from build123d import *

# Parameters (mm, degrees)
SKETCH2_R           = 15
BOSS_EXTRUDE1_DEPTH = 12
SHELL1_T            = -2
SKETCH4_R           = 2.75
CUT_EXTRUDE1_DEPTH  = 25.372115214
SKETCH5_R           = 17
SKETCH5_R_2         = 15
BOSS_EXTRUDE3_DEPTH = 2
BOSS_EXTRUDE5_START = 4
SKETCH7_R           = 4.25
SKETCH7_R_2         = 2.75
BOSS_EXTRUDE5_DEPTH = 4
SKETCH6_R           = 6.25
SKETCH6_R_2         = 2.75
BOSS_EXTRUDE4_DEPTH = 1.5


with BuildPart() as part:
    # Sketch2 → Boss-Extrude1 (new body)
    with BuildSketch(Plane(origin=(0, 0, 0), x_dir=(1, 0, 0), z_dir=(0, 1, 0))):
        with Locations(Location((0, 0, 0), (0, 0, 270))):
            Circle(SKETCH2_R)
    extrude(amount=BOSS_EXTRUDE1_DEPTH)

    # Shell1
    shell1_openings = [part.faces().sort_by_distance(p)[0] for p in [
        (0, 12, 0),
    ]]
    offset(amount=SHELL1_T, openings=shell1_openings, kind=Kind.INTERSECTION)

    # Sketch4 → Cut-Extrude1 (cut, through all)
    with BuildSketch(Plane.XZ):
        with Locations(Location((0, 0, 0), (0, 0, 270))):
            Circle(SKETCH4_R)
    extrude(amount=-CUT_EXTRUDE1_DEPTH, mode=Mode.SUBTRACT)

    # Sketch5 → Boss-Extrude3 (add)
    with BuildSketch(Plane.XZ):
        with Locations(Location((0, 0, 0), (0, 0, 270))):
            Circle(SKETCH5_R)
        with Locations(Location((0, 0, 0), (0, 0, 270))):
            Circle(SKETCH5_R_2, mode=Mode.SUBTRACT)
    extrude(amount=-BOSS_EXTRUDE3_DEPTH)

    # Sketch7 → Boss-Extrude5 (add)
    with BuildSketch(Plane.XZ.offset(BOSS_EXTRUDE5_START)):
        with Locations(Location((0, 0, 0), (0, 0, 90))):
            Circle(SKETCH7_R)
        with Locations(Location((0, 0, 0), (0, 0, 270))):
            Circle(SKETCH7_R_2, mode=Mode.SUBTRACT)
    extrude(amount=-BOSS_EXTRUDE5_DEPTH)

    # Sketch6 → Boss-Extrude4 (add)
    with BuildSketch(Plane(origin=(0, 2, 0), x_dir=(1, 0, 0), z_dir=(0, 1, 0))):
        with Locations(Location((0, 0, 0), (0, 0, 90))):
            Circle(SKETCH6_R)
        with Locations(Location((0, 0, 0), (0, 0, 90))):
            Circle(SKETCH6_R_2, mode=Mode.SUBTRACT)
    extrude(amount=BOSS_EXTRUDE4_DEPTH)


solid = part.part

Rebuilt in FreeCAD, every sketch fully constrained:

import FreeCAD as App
import Part
import Sketcher


def faces_at(feature, points):
    """Names of the faces that lie closest to the given points."""
    faces = feature.Shape.Faces
    near = lambda p: min(range(len(faces)), key=lambda i: faces[i].distToShape(Part.Vertex(*p))[0])
    return sorted({f"Face{near(p) + 1}" for p in points})

doc = App.newDocument("Part")
body = doc.addObject("PartDesign::Body", "Body")

# Sketch on XZ plane
sketch1 = doc.addObject("Sketcher::SketchObject", "Sketch")
body.addObject(sketch1)
sketch1.AttachmentSupport = (doc.XZ_Plane, [""])
sketch1.MapMode = "FlatFace"
sketch1.addGeometry(Part.Circle(App.Vector(0, 0, 0), App.Vector(0, 0, 1), 15), False)
sketch1.addConstraint([
    Sketcher.Constraint("Coincident", 0, 3, -1, 1),
    Sketcher.Constraint("Diameter", 0, 30.0),
])
pad1 = doc.addObject("PartDesign::Pad", "Pad")
body.addObject(pad1)
pad1.Profile = sketch1
pad1.Length = 12
pad1.Reversed = True
doc.recompute()

thickness = doc.addObject("PartDesign::Thickness", "Thickness")
body.addObject(thickness)
thickness.Base = (pad1, faces_at(pad1, [(0, 12, 0)]))
thickness.Value = 2
thickness.Reversed = True
thickness.Join = "Intersection"

# Sketch on XZ plane
sketch2 = doc.addObject("Sketcher::SketchObject", "Sketch001")
body.addObject(sketch2)
sketch2.AttachmentSupport = (doc.XZ_Plane, [""])
sketch2.MapMode = "FlatFace"
sketch2.addGeometry(Part.Circle(App.Vector(0, 0, 0), App.Vector(0, 0, 1), 2.8), False)
sketch2.addConstraint([
    Sketcher.Constraint("Coincident", 0, 3, -1, 1),
    Sketcher.Constraint("Diameter", 0, 5.5),
])
pocket1 = doc.addObject("PartDesign::Pocket", "Pocket")
body.addObject(pocket1)
pocket1.Profile = sketch2
pocket1.Type = "ThroughAll"

# Sketch on XZ plane
sketch3 = doc.addObject("Sketcher::SketchObject", "Sketch002")
body.addObject(sketch3)
sketch3.AttachmentSupport = (doc.XZ_Plane, [""])
sketch3.MapMode = "FlatFace"
sketch3.addGeometry([
    Part.Circle(App.Vector(0, 0, 0), App.Vector(0, 0, 1), 17),
    Part.Circle(App.Vector(0, 0, 0), App.Vector(0, 0, 1), 15),
], False)
sketch3.addConstraint([
    Sketcher.Constraint("Coincident", 0, 3, -1, 1),
    Sketcher.Constraint("Coincident", 1, 3, -1, 1),
    Sketcher.Constraint("Diameter", 0, 34.0),
    Sketcher.Constraint("Diameter", 1, 30.0),
])
pad2 = doc.addObject("PartDesign::Pad", "Pad001")
body.addObject(pad2)
pad2.Profile = sketch3
pad2.Length = 2
pad2.Reversed = True

# Sketch on XZ plane
sketch4 = doc.addObject("Sketcher::SketchObject", "Sketch003")
body.addObject(sketch4)
sketch4.AttachmentSupport = (doc.XZ_Plane, [""])
sketch4.MapMode = "FlatFace"
sketch4.AttachmentOffset = App.Placement(App.Vector(0, 0, 4), App.Rotation())
sketch4.addGeometry([
    Part.Circle(App.Vector(0, 0, 0), App.Vector(0, 0, 1), 4.2),
    Part.Circle(App.Vector(0, 0, 0), App.Vector(0, 0, 1), 2.8),
], False)
sketch4.addConstraint([
    Sketcher.Constraint("Coincident", 0, 3, -1, 1),
    Sketcher.Constraint("Coincident", 1, 3, -1, 1),
    Sketcher.Constraint("Diameter", 0, 8.5),
    Sketcher.Constraint("Diameter", 1, 5.5),
])
pad3 = doc.addObject("PartDesign::Pad", "Pad002")
body.addObject(pad3)
pad3.Profile = sketch4
pad3.Length = 4
pad3.Reversed = True

# Sketch on XZ plane
sketch5 = doc.addObject("Sketcher::SketchObject", "Sketch004")
body.addObject(sketch5)
sketch5.AttachmentSupport = (doc.XZ_Plane, [""])
sketch5.MapMode = "FlatFace"
sketch5.AttachmentOffset = App.Placement(App.Vector(0, 0, -2), App.Rotation())
sketch5.addGeometry([
    Part.Circle(App.Vector(0, 0, 0), App.Vector(0, 0, 1), 6.2),
    Part.Circle(App.Vector(0, 0, 0), App.Vector(0, 0, 1), 2.8),
], False)
sketch5.addConstraint([
    Sketcher.Constraint("Coincident", 0, 3, -1, 1),
    Sketcher.Constraint("Coincident", 1, 3, -1, 1),
    Sketcher.Constraint("Diameter", 0, 12.5),
    Sketcher.Constraint("Diameter", 1, 5.5),
])
pad4 = doc.addObject("PartDesign::Pad", "Pad003")
body.addObject(pad4)
pad4.Profile = sketch5
pad4.Length = 1.5
pad4.Reversed = True

doc.recompute()
